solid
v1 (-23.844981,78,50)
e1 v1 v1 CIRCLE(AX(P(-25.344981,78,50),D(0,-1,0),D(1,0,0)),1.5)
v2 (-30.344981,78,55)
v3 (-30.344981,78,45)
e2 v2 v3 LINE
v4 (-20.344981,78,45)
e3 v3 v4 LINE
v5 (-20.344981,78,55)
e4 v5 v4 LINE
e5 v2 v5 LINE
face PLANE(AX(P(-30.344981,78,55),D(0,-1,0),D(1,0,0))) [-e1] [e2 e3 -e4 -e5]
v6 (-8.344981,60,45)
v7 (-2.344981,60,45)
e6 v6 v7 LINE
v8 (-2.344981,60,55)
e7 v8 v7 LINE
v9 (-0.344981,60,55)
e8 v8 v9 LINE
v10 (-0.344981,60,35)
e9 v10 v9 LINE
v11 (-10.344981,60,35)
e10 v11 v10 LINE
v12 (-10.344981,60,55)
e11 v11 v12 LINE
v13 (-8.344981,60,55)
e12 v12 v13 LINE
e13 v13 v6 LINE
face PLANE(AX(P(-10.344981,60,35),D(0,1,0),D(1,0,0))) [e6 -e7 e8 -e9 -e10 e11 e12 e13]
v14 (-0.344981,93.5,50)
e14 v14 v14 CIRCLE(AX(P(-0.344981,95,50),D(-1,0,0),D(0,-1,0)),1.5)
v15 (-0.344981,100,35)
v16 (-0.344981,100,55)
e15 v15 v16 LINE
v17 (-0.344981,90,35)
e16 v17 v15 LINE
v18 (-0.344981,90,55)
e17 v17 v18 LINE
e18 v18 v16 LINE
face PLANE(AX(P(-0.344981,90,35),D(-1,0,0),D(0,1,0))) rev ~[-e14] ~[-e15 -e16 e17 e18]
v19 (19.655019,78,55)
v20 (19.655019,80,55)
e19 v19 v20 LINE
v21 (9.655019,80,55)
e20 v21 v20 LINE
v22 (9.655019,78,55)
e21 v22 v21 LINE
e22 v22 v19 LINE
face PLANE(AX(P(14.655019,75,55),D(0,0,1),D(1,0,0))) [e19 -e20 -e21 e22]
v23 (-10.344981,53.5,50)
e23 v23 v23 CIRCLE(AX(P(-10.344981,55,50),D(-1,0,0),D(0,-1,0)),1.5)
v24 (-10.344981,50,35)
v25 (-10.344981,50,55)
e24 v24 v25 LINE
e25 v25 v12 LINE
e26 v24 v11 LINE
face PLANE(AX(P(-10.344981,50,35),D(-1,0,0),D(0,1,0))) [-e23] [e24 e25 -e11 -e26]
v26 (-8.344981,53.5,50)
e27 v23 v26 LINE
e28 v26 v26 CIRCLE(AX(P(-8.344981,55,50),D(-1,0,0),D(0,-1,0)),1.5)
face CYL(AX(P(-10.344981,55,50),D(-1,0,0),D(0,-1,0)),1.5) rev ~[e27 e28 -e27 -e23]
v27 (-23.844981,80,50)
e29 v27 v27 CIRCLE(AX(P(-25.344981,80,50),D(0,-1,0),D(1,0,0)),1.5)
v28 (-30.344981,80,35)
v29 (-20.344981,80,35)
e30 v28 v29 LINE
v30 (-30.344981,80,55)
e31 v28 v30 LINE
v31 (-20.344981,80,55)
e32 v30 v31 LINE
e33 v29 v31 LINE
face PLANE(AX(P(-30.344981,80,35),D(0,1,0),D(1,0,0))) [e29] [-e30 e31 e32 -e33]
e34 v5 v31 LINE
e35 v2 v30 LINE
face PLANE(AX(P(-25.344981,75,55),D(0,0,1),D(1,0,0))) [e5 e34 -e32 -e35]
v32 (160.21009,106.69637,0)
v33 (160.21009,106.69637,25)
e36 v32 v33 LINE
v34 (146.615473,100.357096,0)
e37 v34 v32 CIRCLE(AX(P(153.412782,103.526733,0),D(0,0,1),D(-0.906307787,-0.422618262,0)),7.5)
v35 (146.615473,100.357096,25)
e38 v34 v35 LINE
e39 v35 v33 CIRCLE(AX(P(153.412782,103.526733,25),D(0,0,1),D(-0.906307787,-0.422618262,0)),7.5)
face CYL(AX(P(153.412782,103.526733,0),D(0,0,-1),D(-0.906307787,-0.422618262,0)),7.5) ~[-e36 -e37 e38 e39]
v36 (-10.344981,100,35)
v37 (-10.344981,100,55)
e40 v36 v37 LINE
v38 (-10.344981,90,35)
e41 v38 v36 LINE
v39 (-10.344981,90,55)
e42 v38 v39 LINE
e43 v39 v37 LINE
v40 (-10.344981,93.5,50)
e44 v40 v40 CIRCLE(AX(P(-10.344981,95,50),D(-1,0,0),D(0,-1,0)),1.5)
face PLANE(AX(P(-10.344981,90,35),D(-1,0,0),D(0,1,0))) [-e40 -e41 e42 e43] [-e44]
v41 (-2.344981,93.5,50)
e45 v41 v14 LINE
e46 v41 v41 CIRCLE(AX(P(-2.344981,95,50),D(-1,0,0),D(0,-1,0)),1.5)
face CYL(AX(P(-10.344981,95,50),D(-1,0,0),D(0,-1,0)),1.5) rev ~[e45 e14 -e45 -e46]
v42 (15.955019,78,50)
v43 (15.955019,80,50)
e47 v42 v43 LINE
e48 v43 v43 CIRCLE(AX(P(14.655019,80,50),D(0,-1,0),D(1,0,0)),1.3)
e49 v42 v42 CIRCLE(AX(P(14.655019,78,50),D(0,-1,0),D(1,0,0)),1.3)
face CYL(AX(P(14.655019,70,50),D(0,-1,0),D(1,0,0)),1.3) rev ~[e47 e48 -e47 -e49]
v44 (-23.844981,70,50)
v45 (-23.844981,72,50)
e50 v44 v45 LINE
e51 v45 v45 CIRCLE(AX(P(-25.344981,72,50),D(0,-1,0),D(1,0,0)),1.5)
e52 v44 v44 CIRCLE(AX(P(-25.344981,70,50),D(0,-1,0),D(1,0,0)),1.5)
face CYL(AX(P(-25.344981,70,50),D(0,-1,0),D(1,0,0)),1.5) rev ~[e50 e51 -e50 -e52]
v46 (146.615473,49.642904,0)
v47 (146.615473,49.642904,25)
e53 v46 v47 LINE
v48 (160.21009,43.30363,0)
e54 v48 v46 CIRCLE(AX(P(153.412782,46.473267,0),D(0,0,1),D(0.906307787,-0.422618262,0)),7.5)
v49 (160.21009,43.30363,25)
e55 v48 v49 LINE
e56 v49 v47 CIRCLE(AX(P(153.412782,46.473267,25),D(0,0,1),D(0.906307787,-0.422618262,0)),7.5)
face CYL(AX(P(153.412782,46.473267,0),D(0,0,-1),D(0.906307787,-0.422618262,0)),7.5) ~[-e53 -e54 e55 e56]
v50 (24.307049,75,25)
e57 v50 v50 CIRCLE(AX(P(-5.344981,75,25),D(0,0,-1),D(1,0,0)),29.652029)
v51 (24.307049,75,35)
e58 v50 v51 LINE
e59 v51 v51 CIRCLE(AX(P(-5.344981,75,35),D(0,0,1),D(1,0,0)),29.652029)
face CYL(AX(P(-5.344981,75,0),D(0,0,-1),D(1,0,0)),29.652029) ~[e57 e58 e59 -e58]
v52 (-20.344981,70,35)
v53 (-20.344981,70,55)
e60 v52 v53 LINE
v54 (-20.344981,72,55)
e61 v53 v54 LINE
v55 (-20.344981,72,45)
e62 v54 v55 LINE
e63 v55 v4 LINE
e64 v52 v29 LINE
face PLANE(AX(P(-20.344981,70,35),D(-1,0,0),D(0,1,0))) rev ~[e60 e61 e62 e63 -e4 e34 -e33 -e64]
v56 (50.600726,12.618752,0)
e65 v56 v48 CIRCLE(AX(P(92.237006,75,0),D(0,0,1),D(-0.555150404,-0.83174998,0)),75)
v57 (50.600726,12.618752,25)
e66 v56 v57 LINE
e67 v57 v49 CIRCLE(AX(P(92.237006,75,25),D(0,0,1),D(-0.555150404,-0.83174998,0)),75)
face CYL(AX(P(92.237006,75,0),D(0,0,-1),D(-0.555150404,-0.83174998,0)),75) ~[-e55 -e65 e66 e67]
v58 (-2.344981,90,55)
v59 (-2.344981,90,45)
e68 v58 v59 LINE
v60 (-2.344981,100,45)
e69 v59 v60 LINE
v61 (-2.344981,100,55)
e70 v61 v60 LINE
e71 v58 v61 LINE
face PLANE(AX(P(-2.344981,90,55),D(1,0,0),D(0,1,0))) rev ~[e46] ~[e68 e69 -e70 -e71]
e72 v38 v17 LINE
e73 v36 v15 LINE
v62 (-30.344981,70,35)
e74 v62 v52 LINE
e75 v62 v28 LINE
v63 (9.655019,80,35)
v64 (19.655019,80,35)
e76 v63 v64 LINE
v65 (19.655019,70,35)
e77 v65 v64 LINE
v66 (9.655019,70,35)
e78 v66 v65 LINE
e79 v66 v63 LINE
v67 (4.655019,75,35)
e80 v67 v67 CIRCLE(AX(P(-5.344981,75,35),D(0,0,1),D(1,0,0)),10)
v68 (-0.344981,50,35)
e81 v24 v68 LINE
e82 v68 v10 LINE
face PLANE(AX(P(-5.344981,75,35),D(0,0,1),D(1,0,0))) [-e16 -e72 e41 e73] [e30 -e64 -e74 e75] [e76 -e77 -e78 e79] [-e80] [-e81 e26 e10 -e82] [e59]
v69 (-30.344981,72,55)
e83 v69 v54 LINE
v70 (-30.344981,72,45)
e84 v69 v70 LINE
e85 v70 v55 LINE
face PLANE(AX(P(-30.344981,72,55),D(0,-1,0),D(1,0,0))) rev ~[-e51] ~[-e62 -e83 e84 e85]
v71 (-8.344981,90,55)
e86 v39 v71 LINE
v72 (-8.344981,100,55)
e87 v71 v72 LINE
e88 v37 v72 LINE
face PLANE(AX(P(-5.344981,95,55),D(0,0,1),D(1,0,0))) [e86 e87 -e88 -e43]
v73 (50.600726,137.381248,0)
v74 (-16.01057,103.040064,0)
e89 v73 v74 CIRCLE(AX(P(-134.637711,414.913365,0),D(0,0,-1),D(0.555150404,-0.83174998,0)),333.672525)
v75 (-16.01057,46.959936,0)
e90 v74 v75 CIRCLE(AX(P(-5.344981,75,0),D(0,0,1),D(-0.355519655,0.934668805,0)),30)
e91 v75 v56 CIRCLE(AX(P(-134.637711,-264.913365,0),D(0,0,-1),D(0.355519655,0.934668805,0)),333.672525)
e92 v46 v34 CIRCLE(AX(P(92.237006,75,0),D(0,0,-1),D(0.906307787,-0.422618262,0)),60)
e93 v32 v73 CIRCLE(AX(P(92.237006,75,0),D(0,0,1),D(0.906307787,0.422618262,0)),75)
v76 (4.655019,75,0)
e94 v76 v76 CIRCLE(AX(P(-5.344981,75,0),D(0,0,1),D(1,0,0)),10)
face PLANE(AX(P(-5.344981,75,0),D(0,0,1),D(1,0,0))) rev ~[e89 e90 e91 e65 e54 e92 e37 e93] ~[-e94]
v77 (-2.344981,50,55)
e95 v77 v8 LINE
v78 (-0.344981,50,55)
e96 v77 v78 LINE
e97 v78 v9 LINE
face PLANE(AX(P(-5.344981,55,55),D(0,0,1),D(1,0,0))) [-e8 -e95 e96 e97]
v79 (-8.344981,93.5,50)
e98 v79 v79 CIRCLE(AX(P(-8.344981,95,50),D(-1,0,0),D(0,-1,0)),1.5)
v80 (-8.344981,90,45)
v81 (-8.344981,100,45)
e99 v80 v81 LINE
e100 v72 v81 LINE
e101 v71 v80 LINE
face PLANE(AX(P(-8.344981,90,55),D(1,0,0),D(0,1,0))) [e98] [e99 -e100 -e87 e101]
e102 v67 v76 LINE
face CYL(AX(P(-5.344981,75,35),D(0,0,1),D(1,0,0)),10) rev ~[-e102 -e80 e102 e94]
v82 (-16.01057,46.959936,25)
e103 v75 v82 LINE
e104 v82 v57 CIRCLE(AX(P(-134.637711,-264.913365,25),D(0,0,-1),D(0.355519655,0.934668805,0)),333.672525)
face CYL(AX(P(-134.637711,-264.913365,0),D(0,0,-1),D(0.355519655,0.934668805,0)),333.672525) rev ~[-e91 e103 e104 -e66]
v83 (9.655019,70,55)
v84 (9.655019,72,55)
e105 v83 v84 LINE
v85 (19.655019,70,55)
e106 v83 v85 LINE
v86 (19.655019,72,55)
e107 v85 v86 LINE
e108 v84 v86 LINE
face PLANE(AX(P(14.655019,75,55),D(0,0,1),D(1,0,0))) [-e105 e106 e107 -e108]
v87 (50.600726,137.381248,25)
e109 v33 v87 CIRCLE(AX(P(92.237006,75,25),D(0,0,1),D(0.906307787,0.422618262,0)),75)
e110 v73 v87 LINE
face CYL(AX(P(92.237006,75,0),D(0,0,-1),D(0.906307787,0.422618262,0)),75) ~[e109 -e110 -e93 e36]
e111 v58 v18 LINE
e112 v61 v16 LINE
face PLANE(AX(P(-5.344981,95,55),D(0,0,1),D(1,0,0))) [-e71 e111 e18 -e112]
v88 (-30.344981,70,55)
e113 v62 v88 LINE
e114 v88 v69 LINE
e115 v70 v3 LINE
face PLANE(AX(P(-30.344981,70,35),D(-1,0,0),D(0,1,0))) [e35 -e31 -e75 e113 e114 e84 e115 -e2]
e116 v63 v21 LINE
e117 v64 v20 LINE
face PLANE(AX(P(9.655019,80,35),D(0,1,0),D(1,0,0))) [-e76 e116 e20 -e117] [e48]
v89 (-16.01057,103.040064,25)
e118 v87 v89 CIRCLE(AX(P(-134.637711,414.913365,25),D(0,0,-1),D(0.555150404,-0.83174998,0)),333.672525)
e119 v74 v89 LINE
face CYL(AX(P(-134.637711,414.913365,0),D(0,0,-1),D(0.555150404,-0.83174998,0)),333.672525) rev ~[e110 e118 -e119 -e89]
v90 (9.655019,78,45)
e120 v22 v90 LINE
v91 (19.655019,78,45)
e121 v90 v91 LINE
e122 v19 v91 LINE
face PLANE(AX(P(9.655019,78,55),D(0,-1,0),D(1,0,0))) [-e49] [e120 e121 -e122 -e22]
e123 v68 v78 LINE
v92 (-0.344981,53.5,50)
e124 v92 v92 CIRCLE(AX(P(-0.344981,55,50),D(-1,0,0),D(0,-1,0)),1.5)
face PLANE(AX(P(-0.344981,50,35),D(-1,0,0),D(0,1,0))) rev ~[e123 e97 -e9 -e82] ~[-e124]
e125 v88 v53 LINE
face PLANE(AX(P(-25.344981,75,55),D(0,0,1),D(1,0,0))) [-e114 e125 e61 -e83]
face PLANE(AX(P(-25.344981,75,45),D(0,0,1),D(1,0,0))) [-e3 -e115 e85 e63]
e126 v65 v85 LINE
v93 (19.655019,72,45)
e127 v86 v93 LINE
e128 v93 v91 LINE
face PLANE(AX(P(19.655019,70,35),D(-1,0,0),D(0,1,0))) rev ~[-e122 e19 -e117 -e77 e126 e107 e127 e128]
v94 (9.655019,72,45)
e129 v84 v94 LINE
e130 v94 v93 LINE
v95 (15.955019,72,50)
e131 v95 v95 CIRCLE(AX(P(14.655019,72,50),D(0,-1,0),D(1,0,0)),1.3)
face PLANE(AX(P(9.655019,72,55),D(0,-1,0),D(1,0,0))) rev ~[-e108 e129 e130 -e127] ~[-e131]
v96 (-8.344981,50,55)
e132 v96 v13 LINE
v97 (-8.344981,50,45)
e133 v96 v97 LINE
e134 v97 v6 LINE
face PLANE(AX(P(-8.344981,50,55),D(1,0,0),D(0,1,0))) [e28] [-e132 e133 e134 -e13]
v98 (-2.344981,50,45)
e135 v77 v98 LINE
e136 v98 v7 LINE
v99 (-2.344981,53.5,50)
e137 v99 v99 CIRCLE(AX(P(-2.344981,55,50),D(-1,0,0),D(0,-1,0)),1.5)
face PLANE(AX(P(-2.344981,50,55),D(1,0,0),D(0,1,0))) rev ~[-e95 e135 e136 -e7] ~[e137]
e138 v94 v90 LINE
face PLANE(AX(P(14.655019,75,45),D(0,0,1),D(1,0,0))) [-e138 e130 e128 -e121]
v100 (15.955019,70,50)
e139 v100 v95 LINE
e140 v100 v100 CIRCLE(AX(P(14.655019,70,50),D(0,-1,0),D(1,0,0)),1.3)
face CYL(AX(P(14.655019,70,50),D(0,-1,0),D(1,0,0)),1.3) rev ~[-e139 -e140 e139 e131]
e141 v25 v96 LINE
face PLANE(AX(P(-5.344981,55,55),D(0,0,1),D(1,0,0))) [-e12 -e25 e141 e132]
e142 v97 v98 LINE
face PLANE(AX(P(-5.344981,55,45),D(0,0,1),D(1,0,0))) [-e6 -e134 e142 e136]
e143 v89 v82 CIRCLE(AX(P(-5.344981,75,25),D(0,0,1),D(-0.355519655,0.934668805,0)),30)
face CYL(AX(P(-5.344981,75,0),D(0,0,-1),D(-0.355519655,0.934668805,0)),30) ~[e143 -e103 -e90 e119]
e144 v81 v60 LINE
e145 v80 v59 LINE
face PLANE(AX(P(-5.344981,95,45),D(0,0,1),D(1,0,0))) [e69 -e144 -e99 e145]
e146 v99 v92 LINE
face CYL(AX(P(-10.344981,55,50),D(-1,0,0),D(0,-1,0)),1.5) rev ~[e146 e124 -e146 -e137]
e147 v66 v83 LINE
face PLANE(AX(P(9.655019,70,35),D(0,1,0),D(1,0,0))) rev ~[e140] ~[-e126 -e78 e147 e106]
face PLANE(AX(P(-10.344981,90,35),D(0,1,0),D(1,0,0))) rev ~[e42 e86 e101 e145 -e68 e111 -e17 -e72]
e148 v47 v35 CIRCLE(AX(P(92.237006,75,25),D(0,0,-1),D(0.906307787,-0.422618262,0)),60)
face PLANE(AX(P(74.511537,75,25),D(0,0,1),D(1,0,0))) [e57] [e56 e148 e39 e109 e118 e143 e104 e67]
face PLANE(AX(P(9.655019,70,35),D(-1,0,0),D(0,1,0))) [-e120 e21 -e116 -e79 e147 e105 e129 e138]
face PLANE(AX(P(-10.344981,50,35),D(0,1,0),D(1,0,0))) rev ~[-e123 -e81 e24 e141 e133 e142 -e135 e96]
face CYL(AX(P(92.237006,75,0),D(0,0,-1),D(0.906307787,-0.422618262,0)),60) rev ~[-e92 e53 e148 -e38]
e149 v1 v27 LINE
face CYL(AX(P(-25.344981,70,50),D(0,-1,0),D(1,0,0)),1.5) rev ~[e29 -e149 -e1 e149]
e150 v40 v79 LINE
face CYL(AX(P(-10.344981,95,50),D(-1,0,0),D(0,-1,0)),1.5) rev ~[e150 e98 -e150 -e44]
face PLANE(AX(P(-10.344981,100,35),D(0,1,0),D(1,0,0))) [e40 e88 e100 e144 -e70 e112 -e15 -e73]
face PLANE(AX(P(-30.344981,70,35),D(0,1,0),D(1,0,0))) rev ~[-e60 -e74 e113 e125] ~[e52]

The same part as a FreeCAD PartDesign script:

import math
import FreeCAD as App
import Part
import Sketcher
from FreeCAD import Vector
Q = App.Units.Quantity


def add_polygon(sketch, points):
    """Adds a closed chain of lines whose ends are joined by coincident constraints."""
    first, n = sketch.GeometryCount, len(points)
    for a, b in zip(points, points[1:] + points[:1]):
        sketch.addGeometry(Part.LineSegment(App.Vector(*a, 0), App.Vector(*b, 0)), False)
    for i in range(n):
        sketch.addConstraint(Sketcher.Constraint("Coincident", first + i, 2, first + (i + 1) % n, 1))

doc = App.newDocument("Part")
body = doc.addObject("PartDesign::Body", "Body")

sketch1 = body.newObject("Sketcher::SketchObject", "Sketch")
sketch1.AttachmentSupport = (doc.getObject("XY_Plane"), [""])
sketch1.MapMode = "FlatFace"
sketch1.addGeometry([
    Part.ArcOfCircle(Part.Circle(Vector(92, 75, 0), Vector(0, 0, 1), 75), math.radians(-124), math.radians(-25)),
    Part.ArcOfCircle(Part.Circle(Vector(153, 46, 0), Vector(0, 0, 1), 8), math.radians(-25), math.radians(155)),
    Part.ArcOfCircle(Part.Circle(Vector(92, 75, 0), Vector(0, 0, 1), 60), math.radians(25), math.radians(335)),
    Part.ArcOfCircle(Part.Circle(Vector(153, 104, 0), Vector(0, 0, 1), 8), math.radians(-155), math.radians(25)),
    Part.ArcOfCircle(Part.Circle(Vector(92, 75, 0), Vector(0, 0, 1), 75), math.radians(25), math.radians(124)),
    Part.ArcOfCircle(Part.Circle(Vector(-135, 415, 0), Vector(0, 0, 1), 334), math.radians(-69.17), math.radians(-56.28)),
    Part.ArcOfCircle(Part.Circle(Vector(-5, 75, 0), Vector(0, 0, 1), 30), math.radians(111), math.radians(249)),
    Part.ArcOfCircle(Part.Circle(Vector(-135, -265, 0), Vector(0, 0, 1), 334), math.radians(56.28), math.radians(69.17)),
], False)
sketch1.addConstraint([
    Sketcher.Constraint("Tangent", 0, 2, 1, 1),
    Sketcher.Constraint("Tangent", 1, 2, 2, 2),
    Sketcher.Constraint("Tangent", 2, 1, 3, 1),
    Sketcher.Constraint("Tangent", 3, 2, 4, 1),
    Sketcher.Constraint("Tangent", 4, 2, 5, 2),
    Sketcher.Constraint("Tangent", 5, 1, 6, 1),
    Sketcher.Constraint("Tangent", 6, 2, 7, 2),
    Sketcher.Constraint("Tangent", 7, 1, 0, 1),
    Sketcher.Constraint("Coincident", 2, 3, 0, 3),
    Sketcher.Constraint("Coincident", 4, 3, 0, 3),
    Sketcher.Constraint("Equal", 1, 3),
    Sketcher.Constraint("Equal", 5, 7),
    Sketcher.Constraint("Horizontal", 4, 3, 6, 3),
    Sketcher.Constraint("Vertical", 1, 3, 3, 3),
    Sketcher.Constraint("Radius", 0, Q("75 mm")),
    Sketcher.Constraint("Radius", 2, Q("60 mm")),
    Sketcher.Constraint("Radius", 6, Q("30 mm")),
    Sketcher.Constraint("DistanceY", -1, 1, 0, 3, Q("75 mm")),
    Sketcher.Constraint("Radius", 5, Q("333.672525 mm")),
    Sketcher.Constraint("DistanceX", -1, 1, 1, 3, Q("153.412782 mm")),
    Sketcher.Constraint("DistanceX", 5, 3, -1, 1, Q("134.637711 mm")),
    Sketcher.Constraint("DistanceX", 6, 3, -1, 1, Q("5.344981 mm")),
])
pad1 = body.newObject("PartDesign::Pad", "Pad")
pad1.Profile = sketch1
pad1.Length = 25

sketch2 = body.newObject("Sketcher::SketchObject", "Sketch001")
sketch2.AttachmentSupport = (doc.getObject("XY_Plane"), [""])
sketch2.MapMode = "FlatFace"
sketch2.addGeometry(Part.Circle(Vector(-5, 75, 0), Vector(0, 0, 1), 30), False)
sketch2.addConstraint([
    Sketcher.Constraint("DistanceY", -1, 1, 0, 3, Q("75 mm")),
    Sketcher.Constraint("Diameter", 0, Q("59.304058 mm")),
    Sketcher.Constraint("DistanceX", 0, 3, -1, 1, Q("5.344981 mm")),
])
pad2 = body.newObject("PartDesign::Pad", "Pad001")
pad2.Profile = sketch2
pad2.Length = 35

sketch3 = body.newObject("Sketcher::SketchObject", "Sketch002")
sketch3.AttachmentSupport = (doc.getObject("XY_Plane"), [""])
sketch3.MapMode = "FlatFace"
sketch3.AttachmentOffset = App.Placement(Vector(0, 0, 35), App.Rotation())
sketch3.addGeometry(Part.Circle(Vector(-5, 75, 0), Vector(0, 0, 1), 10), False)
sketch3.addConstraint([
    Sketcher.Constraint("Diameter", 0, Q("20 mm")),
    Sketcher.Constraint("DistanceY", -1, 1, 0, 3, Q("75 mm")),
    Sketcher.Constraint("DistanceX", 0, 3, -1, 1, Q("5.344981 mm")),
])
pocket1 = body.newObject("PartDesign::Pocket", "Pocket")
pocket1.Profile = sketch3
pocket1.Length = 35

sketch4 = body.newObject("Sketcher::SketchObject", "Sketch003")
sketch4.AttachmentSupport = (doc.getObject("XY_Plane"), [""])
sketch4.MapMode = "FlatFace"
sketch4.AttachmentOffset = App.Placement(Vector(0, 0, 35), App.Rotation())
add_polygon(sketch4, [(10, 80), (10, 70), (20, 70), (20, 80)])
add_polygon(sketch4, [(-10, 60), (-10, 50), (0, 50), (0, 60)])
add_polygon(sketch4, [(-10, 100), (-10, 90), (0, 90), (0, 100)])
add_polygon(sketch4, [(-30, 80), (-30, 70), (-20, 70), (-20, 80)])
sketch4.addConstraint([
    Sketcher.Constraint("Vertical", 0),
    Sketcher.Constraint("Horizontal", 1),
    Sketcher.Constraint("Vertical", 2),
    Sketcher.Constraint("Horizontal", 3),
    Sketcher.Constraint("Vertical", 4),
    Sketcher.Constraint("Horizontal", 5),
    Sketcher.Constraint("Vertical", 6),
    Sketcher.Constraint("Horizontal", 7),
    Sketcher.Constraint("Vertical", 8),
    Sketcher.Constraint("Horizontal", 9),
    Sketcher.Constraint("Vertical", 10),
    Sketcher.Constraint("Horizontal", 11),
    Sketcher.Constraint("Vertical", 12),
    Sketcher.Constraint("Horizontal", 13),
    Sketcher.Constraint("Vertical", 14),
    Sketcher.Constraint("Horizontal", 15),
    Sketcher.Constraint("Horizontal", 1, 2, 12, 2),
    Sketcher.Constraint("Horizontal", 3, 2, 14, 2),
    Sketcher.Constraint("Vertical", 7, 2, 8, 2),
    Sketcher.Constraint("Vertical", 6, 2, 9, 2),
    Sketcher.Constraint("Equal", 3, 5),
    Sketcher.Constraint("Equal", 11, 13),
    Sketcher.Constraint("Equal", 15, 0),
    Sketcher.Constraint("Equal", 2, 4),
    Sketcher.Constraint("Equal", 6, 8),
    Sketcher.Constraint("DistanceX", 1, 1, 1, 2, Q("10 mm")),
    Sketcher.Constraint("DistanceY", -1, 1, 0, 2, Q("70 mm")),
    Sketcher.Constraint("DistanceY", -1, 1, 4, 2, Q("50 mm")),
    Sketcher.Constraint("DistanceY", -1, 1, 8, 2, Q("90 mm")),
    Sketcher.Constraint("DistanceX", 4, 2, 0, 2, Q("20 mm")),
    Sketcher.Constraint("DistanceX", 12, 2, 7, 2, Q("20 mm")),
    Sketcher.Constraint("DistanceX", -1, 1, 0, 2, Q("9.655019 mm")),
])
pad3 = body.newObject("PartDesign::Pad", "Pad002")
pad3.Profile = sketch4
pad3.Length = 20

sketch5 = body.newObject("Sketcher::SketchObject", "Sketch004")
sketch5.AttachmentSupport = (doc.getObject("XY_Plane"), [""])
sketch5.MapMode = "FlatFace"
sketch5.AttachmentOffset = App.Placement(Vector(0, 0, 55), App.Rotation())
add_polygon(sketch5, [(-8, 100), (-8, 90), (-2, 90), (-2, 100)])
add_polygon(sketch5, [(10, 78), (10, 72), (20, 72), (20, 78)])
add_polygon(sketch5, [(-8, 60), (-8, 50), (-2, 50), (-2, 60)])
add_polygon(sketch5, [(-30, 78), (-30, 72), (-20, 72), (-20, 78)])
sketch5.addConstraint([
    Sketcher.Constraint("Vertical", 0),
    Sketcher.Constraint("Horizontal", 1),
    Sketcher.Constraint("Vertical", 2),
    Sketcher.Constraint("Horizontal", 3),
    Sketcher.Constraint("Vertical", 4),
    Sketcher.Constraint("Horizontal", 5),
    Sketcher.Constraint("Vertical", 6),
    Sketcher.Constraint("Horizontal", 7),
    Sketcher.Constraint("Vertical", 8),
    Sketcher.Constraint("Horizontal", 9),
    Sketcher.Constraint("Vertical", 10),
    Sketcher.Constraint("Horizontal", 11),
    Sketcher.Constraint("Vertical", 12),
    Sketcher.Constraint("Horizontal", 13),
    Sketcher.Constraint("Vertical", 14),
    Sketcher.Constraint("Horizontal", 15),
    Sketcher.Constraint("Horizontal", 5, 2, 12, 2),
    Sketcher.Constraint("Horizontal", 7, 2, 14, 2),
    Sketcher.Constraint("Vertical", 3, 2, 8, 2),
    Sketcher.Constraint("Vertical", 2, 2, 9, 2),
    Sketcher.Constraint("Equal", 7, 13),
    Sketcher.Constraint("Equal", 15, 0),
    Sketcher.Constraint("Equal", 11, 4),
    Sketcher.Constraint("Equal", 2, 8),
    Sketcher.Constraint("DistanceX", 1, 1, 1, 2, Q("6 mm")),
    Sketcher.Constraint("DistanceX", 5, 1, 5, 2, Q("10 mm")),
    Sketcher.Constraint("DistanceY", -1, 1, 0, 2, Q("90 mm")),
    Sketcher.Constraint("DistanceY", -1, 1, 4, 2, Q("72 mm")),
    Sketcher.Constraint("DistanceY", -1, 1, 8, 2, Q("50 mm")),
    Sketcher.Constraint("DistanceX", 1, 2, 4, 2, Q("12 mm")),
    Sketcher.Constraint("DistanceX", 12, 2, 11, 2, Q("22 mm")),
    Sketcher.Constraint("DistanceX", 0, 2, -1, 1, Q("8.344981 mm")),
])
pocket2 = body.newObject("PartDesign::Pocket", "Pocket001")
pocket2.Profile = sketch5
pocket2.Length = 10

sketch6 = body.newObject("Sketcher::SketchObject", "Sketch005")
sketch6.AttachmentSupport = (doc.getObject("XZ_Plane"), [""])
sketch6.MapMode = "FlatFace"
sketch6.AttachmentOffset = App.Placement(Vector(0, 0, -70), App.Rotation())
sketch6.addGeometry([
    Part.Circle(Vector(14.7, 50, 0), Vector(0, 0, 1), 1.3),
    Part.Circle(Vector(-25.3, 50, 0), Vector(0, 0, 1), 1.5),
], False)
sketch6.addConstraint([
    Sketcher.Constraint("Horizontal", 0, 3, 1, 3),
    Sketcher.Constraint("Diameter", 1, Q("3 mm")),
    Sketcher.Constraint("Diameter", 0, Q("2.6 mm")),
    Sketcher.Constraint("DistanceY", -1, 1, 0, 3, Q("50 mm")),
    Sketcher.Constraint("DistanceX", 1, 3, 0, 3, Q("40 mm")),
    Sketcher.Constraint("DistanceX", -1, 1, 0, 3, Q("14.655019 mm")),
])
pocket3 = body.newObject("PartDesign::Pocket", "Pocket002")
pocket3.Profile = sketch6
pocket3.Length = 10

sketch7 = body.newObject("Sketcher::SketchObject", "Sketch006")
sketch7.AttachmentSupport = (doc.getObject("YZ_Plane"), [""])
sketch7.MapMode = "FlatFace"
sketch7.AttachmentOffset = App.Placement(Vector(0, 0, -10.344981), App.Rotation())
sketch7.addGeometry([
    Part.Circle(Vector(55, 50, 0), Vector(0, 0, 1), 1.5),
    Part.Circle(Vector(95, 50, 0), Vector(0, 0, 1), 1.5),
], False)
sketch7.addConstraint([
    Sketcher.Constraint("Equal", 0, 1),
    Sketcher.Constraint("Horizontal", 0, 3, 1, 3),
    Sketcher.Constraint("Diameter", 0, Q("3 mm")),
    Sketcher.Constraint("DistanceX", -1, 1, 0, 3, Q("55 mm")),
    Sketcher.Constraint("DistanceY", -1, 1, 0, 3, Q("50 mm")),
    Sketcher.Constraint("DistanceX", -1, 1, 1, 3, Q("95 mm")),
])
pocket4 = body.newObject("PartDesign::Pocket", "Pocket003")
pocket4.Profile = sketch7
pocket4.Length = 10
pocket4.Reversed = True

doc.recompute()
